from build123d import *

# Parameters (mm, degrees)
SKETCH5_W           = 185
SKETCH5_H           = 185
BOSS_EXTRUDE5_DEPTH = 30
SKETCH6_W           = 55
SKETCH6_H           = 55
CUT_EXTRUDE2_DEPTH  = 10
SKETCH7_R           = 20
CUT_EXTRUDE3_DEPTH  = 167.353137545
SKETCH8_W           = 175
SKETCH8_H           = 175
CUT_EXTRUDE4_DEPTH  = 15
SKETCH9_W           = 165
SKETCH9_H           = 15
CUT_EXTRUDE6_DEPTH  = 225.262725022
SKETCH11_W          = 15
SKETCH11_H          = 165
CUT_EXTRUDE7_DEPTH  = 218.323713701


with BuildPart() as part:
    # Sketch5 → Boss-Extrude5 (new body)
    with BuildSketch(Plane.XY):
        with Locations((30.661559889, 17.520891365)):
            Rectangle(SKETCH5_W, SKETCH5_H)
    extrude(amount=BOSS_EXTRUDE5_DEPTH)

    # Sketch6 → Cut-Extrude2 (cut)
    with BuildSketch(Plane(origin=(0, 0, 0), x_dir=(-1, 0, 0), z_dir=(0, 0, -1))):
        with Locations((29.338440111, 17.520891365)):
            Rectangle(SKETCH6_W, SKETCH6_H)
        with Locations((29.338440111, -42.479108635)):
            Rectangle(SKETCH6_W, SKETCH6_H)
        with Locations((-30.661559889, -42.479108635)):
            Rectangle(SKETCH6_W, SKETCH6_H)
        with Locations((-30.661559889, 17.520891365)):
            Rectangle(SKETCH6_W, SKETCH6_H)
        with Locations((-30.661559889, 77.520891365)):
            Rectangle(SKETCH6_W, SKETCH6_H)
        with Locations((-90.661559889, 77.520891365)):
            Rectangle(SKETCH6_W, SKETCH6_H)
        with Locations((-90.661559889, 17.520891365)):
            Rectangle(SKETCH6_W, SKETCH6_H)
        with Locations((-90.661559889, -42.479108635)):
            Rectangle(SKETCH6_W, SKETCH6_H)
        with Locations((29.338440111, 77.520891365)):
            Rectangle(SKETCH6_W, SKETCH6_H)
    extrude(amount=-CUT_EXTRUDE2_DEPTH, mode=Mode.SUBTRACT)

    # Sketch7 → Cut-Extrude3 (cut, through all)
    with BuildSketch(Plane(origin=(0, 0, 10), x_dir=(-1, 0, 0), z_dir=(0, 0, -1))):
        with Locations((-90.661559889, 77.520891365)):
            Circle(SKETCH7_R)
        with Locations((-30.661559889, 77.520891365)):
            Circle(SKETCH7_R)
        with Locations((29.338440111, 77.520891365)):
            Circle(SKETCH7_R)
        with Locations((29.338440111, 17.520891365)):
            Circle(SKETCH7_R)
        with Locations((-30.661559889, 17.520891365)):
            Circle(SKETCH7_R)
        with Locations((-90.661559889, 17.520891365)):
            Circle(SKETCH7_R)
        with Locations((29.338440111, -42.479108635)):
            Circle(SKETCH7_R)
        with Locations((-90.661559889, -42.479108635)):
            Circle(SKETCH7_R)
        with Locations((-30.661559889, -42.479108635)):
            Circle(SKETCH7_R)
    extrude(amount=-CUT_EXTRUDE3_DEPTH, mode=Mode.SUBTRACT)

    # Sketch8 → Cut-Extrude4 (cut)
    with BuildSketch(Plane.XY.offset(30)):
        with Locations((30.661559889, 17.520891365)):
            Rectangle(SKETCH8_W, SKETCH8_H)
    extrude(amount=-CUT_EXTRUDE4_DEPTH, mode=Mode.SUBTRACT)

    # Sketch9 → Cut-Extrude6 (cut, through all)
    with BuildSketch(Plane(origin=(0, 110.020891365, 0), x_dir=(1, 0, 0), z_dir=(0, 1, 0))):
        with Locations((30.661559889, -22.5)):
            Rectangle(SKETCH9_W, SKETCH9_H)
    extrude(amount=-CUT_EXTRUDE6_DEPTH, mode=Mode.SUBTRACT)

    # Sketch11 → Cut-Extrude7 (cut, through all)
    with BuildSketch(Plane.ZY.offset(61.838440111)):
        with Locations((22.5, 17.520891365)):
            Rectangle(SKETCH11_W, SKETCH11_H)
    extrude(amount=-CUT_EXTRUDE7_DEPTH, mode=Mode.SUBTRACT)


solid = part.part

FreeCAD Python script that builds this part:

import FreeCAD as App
import Part
import Sketcher

V = App.Vector
Q = App.Units.Quantity

doc = App.newDocument("Part")
body = doc.addObject("PartDesign::Body", "Body")

sketch1 = body.newObject("Sketcher::SketchObject", "Sketch")
sketch1.AttachmentSupport = (doc.getObject("XY_Plane"), [""])
sketch1.MapMode = "FlatFace"
sketch1.addGeometry([
    Part.LineSegment(V(-61.83844, 110.020891, 0), V(-61.83844, -74.979109, 0)),
    Part.LineSegment(V(-61.83844, -74.979109, 0), V(123.16156, -74.979109, 0)),
    Part.LineSegment(V(123.16156, -74.979109, 0), V(123.16156, 110.020891, 0)),
    Part.LineSegment(V(123.16156, 110.020891, 0), V(-61.83844, 110.020891, 0)),
], False)
sketch1.addConstraint([
    Sketcher.Constraint("Coincident", 0, 2, 1, 1),
    Sketcher.Constraint("Coincident", 1, 2, 2, 1),
    Sketcher.Constraint("Coincident", 2, 2, 3, 1),
    Sketcher.Constraint("Coincident", 3, 2, 0, 1),
    Sketcher.Constraint("Vertical", 0),
    Sketcher.Constraint("Horizontal", 1),
    Sketcher.Constraint("Vertical", 2),
    Sketcher.Constraint("Horizontal", 3),
    Sketcher.Constraint("Equal", 3, 0),
    Sketcher.Constraint("DistanceX", 1, 1, 1, 2, Q("185 mm")),
    Sketcher.Constraint("DistanceX", 0, 2, -1, 1, Q("61.83844 mm")),
    Sketcher.Constraint("DistanceY", 0, 2, -1, 1, Q("74.979109 mm")),
])
pad1 = body.newObject("PartDesign::Pad", "Pad")
pad1.Profile = sketch1
pad1.Length = 30

sketch2 = body.newObject("Sketcher::SketchObject", "Sketch001")
sketch2.AttachmentSupport = (doc.getObject("XY_Plane"), [""])
sketch2.MapMode = "FlatFace"
sketch2.addGeometry([
    Part.LineSegment(V(-1.83844, 45.020891, 0), V(-1.83844, -9.979109, 0)),
    Part.LineSegment(V(-1.83844, -9.979109, 0), V(-56.83844, -9.979109, 0)),
    Part.LineSegment(V(-56.83844, -9.979109, 0), V(-56.83844, 45.020891, 0)),
    Part.LineSegment(V(-56.83844, 45.020891, 0), V(-1.83844, 45.020891, 0)),
    Part.LineSegment(V(-1.83844, -14.979109, 0), V(-1.83844, -69.979109, 0)),
    Part.LineSegment(V(-1.83844, -69.979109, 0), V(-56.83844, -69.979109, 0)),
    Part.LineSegment(V(-56.83844, -69.979109, 0), V(-56.83844, -14.979109, 0)),
    Part.LineSegment(V(-56.83844, -14.979109, 0), V(-1.83844, -14.979109, 0)),
    Part.LineSegment(V(58.16156, -14.979109, 0), V(58.16156, -69.979109, 0)),
    Part.LineSegment(V(58.16156, -69.979109, 0), V(3.16156, -69.979109, 0)),
    Part.LineSegment(V(3.16156, -69.979109, 0), V(3.16156, -14.979109, 0)),
    Part.LineSegment(V(3.16156, -14.979109, 0), V(58.16156, -14.979109, 0)),
    Part.LineSegment(V(58.16156, 45.020891, 0), V(58.16156, -9.979109, 0)),
    Part.LineSegment(V(58.16156, -9.979109, 0), V(3.16156, -9.979109, 0)),
    Part.LineSegment(V(3.16156, -9.979109, 0), V(3.16156, 45.020891, 0)),
    Part.LineSegment(V(3.16156, 45.020891, 0), V(58.16156, 45.020891, 0)),
    Part.LineSegment(V(58.16156, 105.020891, 0), V(58.16156, 50.020891, 0)),
    Part.LineSegment(V(58.16156, 50.020891, 0), V(3.16156, 50.020891, 0)),
    Part.LineSegment(V(3.16156, 50.020891, 0), V(3.16156, 105.020891, 0)),
    Part.LineSegment(V(3.16156, 105.020891, 0), V(58.16156, 105.020891, 0)),
    Part.LineSegment(V(118.16156, 105.020891, 0), V(118.16156, 50.020891, 0)),
    Part.LineSegment(V(118.16156, 50.020891, 0), V(63.16156, 50.020891, 0)),
    Part.LineSegment(V(63.16156, 50.020891, 0), V(63.16156, 105.020891, 0)),
    Part.LineSegment(V(63.16156, 105.020891, 0), V(118.16156, 105.020891, 0)),
    Part.LineSegment(V(118.16156, 45.020891, 0), V(118.16156, -9.979109, 0)),
    Part.LineSegment(V(118.16156, -9.979109, 0), V(63.16156, -9.979109, 0)),
    Part.LineSegment(V(63.16156, -9.979109, 0), V(63.16156, 45.020891, 0)),
    Part.LineSegment(V(63.16156, 45.020891, 0), V(118.16156, 45.020891, 0)),
    Part.LineSegment(V(118.16156, -14.979109, 0), V(118.16156, -69.979109, 0)),
    Part.LineSegment(V(118.16156, -69.979109, 0), V(63.16156, -69.979109, 0)),
    Part.LineSegment(V(63.16156, -69.979109, 0), V(63.16156, -14.979109, 0)),
    Part.LineSegment(V(63.16156, -14.979109, 0), V(118.16156, -14.979109, 0)),
    Part.LineSegment(V(-1.83844, 105.020891, 0), V(-1.83844, 50.020891, 0)),
    Part.LineSegment(V(-1.83844, 50.020891, 0), V(-56.83844, 50.020891, 0)),
    Part.LineSegment(V(-56.83844, 50.020891, 0), V(-56.83844, 105.020891, 0)),
    Part.LineSegment(V(-56.83844, 105.020891, 0), V(-1.83844, 105.020891, 0)),
], False)
sketch2.addConstraint([
    Sketcher.Constraint("Coincident", 0, 2, 1, 1),
    Sketcher.Constraint("Coincident", 1, 2, 2, 1),
    Sketcher.Constraint("Coincident", 2, 2, 3, 1),
    Sketcher.Constraint("Coincident", 3, 2, 0, 1),
    Sketcher.Constraint("Coincident", 4, 2, 5, 1),
    Sketcher.Constraint("Coincident", 5, 2, 6, 1),
    Sketcher.Constraint("Coincident", 6, 2, 7, 1),
    Sketcher.Constraint("Coincident", 7, 2, 4, 1),
    Sketcher.Constraint("Coincident", 8, 2, 9, 1),
    Sketcher.Constraint("Coincident", 9, 2, 10, 1),
    Sketcher.Constraint("Coincident", 10, 2, 11, 1),
    Sketcher.Constraint("Coincident", 11, 2, 8, 1),
    Sketcher.Constraint("Coincident", 12, 2, 13, 1),
    Sketcher.Constraint("Coincident", 13, 2, 14, 1),
    Sketcher.Constraint("Coincident", 14, 2, 15, 1),
    Sketcher.Constraint("Coincident", 15, 2, 12, 1),
    Sketcher.Constraint("Coincident", 16, 2, 17, 1),
    Sketcher.Constraint("Coincident", 17, 2, 18, 1),
    Sketcher.Constraint("Coincident", 18, 2, 19, 1),
    Sketcher.Constraint("Coincident", 19, 2, 16, 1),
    Sketcher.Constraint("Coincident", 20, 2, 21, 1),
    Sketcher.Constraint("Coincident", 21, 2, 22, 1),
    Sketcher.Constraint("Coincident", 22, 2, 23, 1),
    Sketcher.Constraint("Coincident", 23, 2, 20, 1),
    Sketcher.Constraint("Coincident", 24, 2, 25, 1),
    Sketcher.Constraint("Coincident", 25, 2, 26, 1),
    Sketcher.Constraint("Coincident", 26, 2, 27, 1),
    Sketcher.Constraint("Coincident", 27, 2, 24, 1),
    Sketcher.Constraint("Coincident", 28, 2, 29, 1),
    Sketcher.Constraint("Coincident", 29, 2, 30, 1),
    Sketcher.Constraint("Coincident", 30, 2, 31, 1),
    Sketcher.Constraint("Coincident", 31, 2, 28, 1),
    Sketcher.Constraint("Coincident", 32, 2, 33, 1),
    Sketcher.Constraint("Coincident", 33, 2, 34, 1),
    Sketcher.Constraint("Coincident", 34, 2, 35, 1),
    Sketcher.Constraint("Coincident", 35, 2, 32, 1),
    Sketcher.Constraint("Vertical", 0),
    Sketcher.Constraint("Horizontal", 1),
    Sketcher.Constraint("Vertical", 2),
    Sketcher.Constraint("Horizontal", 3),
    Sketcher.Constraint("Vertical", 4),
    Sketcher.Constraint("Horizontal", 5),
    Sketcher.Constraint("Vertical", 6),
    Sketcher.Constraint("Horizontal", 7),
    Sketcher.Constraint("Vertical", 8),
    Sketcher.Constraint("Horizontal", 9),
    Sketcher.Constraint("Vertical", 10),
    Sketcher.Constraint("Horizontal", 11),
    Sketcher.Constraint("Vertical", 12),
    Sketcher.Constraint("Horizontal", 13),
    Sketcher.Constraint("Vertical", 14),
    Sketcher.Constraint("Horizontal", 15),
    Sketcher.Constraint("Vertical", 16),
    Sketcher.Constraint("Horizontal", 17),
    Sketcher.Constraint("Vertical", 18),
    Sketcher.Constraint("Horizontal", 19),
    Sketcher.Constraint("Vertical", 20),
    Sketcher.Constraint("Horizontal", 21),
    Sketcher.Constraint("Vertical", 22),
    Sketcher.Constraint("Horizontal", 23),
    Sketcher.Constraint("Vertical", 24),
    Sketcher.Constraint("Horizontal", 25),
    Sketcher.Constraint("Vertical", 26),
    Sketcher.Constraint("Horizontal", 27),
    Sketcher.Constraint("Vertical", 28),
    Sketcher.Constraint("Horizontal", 29),
    Sketcher.Constraint("Vertical", 30),
    Sketcher.Constraint("Horizontal", 31),
    Sketcher.Constraint("Vertical", 32),
    Sketcher.Constraint("Horizontal", 33),
    Sketcher.Constraint("Vertical", 34),
    Sketcher.Constraint("Horizontal", 35),
    Sketcher.Constraint("Horizontal", 5, 2, 8, 2),
    Sketcher.Constraint("Horizontal", 7, 2, 10, 2),
    Sketcher.Constraint("Horizontal", 1, 2, 12, 2),
    Sketcher.Constraint("Horizontal", 3, 2, 14, 2),
    Sketcher.Constraint("Horizontal", 17, 2, 20, 2),
    Sketcher.Constraint("Horizontal", 19, 2, 22, 2),
    Sketcher.Constraint("Horizontal", 13, 2, 24, 2),
    Sketcher.Constraint("Horizontal", 15, 2, 26, 2),
    Sketcher.Constraint("Horizontal", 9, 2, 28, 2),
    Sketcher.Constraint("Horizontal", 11, 2, 30, 2),
    Sketcher.Constraint("Horizontal", 21, 2, 32, 2),
    Sketcher.Constraint("Horizontal", 23, 2, 34, 2),
    Sketcher.Constraint("Vertical", 3, 2, 4, 2),
    Sketcher.Constraint("Vertical", 2, 2, 5, 2),
    Sketcher.Constraint("Vertical", 11, 2, 12, 2),
    Sketcher.Constraint("Vertical", 10, 2, 13, 2),
    Sketcher.Constraint("Vertical", 15, 2, 16, 2),
    Sketcher.Constraint("Vertical", 14, 2, 17, 2),
    Sketcher.Constraint("Vertical", 23, 2, 24, 2),
    Sketcher.Constraint("Vertical", 22, 2, 25, 2),
    Sketcher.Constraint("Vertical", 27, 2, 28, 2),
    Sketcher.Constraint("Vertical", 26, 2, 29, 2),
    Sketcher.Constraint("Vertical", 7, 2, 32, 2),
    Sketcher.Constraint("Vertical", 6, 2, 33, 2),
    Sketcher.Constraint("Equal", 7, 9),
    Sketcher.Constraint("Equal", 19, 21),
    Sketcher.Constraint("Equal", 35, 0),
    Sketcher.Constraint("Equal", 2, 4),
    Sketcher.Constraint("Equal", 14, 16),
    Sketcher.Constraint("DistanceX", 1, 2, 1, 1, Q("55 mm")),
    Sketcher.Constraint("DistanceY", 4, 2, 0, 2, Q("60 mm")),
    Sketcher.Constraint("DistanceX", 4, 2, 8, 2, Q("60 mm")),
    Sketcher.Constraint("DistanceY", 15, 2, 16, 2, Q("5 mm")),
    Sketcher.Constraint("DistanceX", 16, 2, 20, 2, Q("60 mm")),
    Sketcher.Constraint("DistanceX", 0, 2, -1, 1, Q("1.83844 mm")),
    Sketcher.Constraint("DistanceY", 0, 2, -1, 1, Q("9.979109 mm")),
])
pocket1 = body.newObject("PartDesign::Pocket", "Pocket")
pocket1.Profile = sketch2
pocket1.Length = 10
pocket1.Reversed = True

sketch3 = body.newObject("Sketcher::SketchObject", "Sketch002")
sketch3.AttachmentSupport = (doc.getObject("XY_Plane"), [""])
sketch3.MapMode = "FlatFace"
sketch3.AttachmentOffset = App.Placement(V(0, 0, 10), App.Rotation())
sketch3.addGeometry([
    Part.Circle(V(90.66156, 77.520891, 0), V(0, 0, 1), 20),
    Part.Circle(V(30.66156, 77.520891, 0), V(0, 0, 1), 20),
    Part.Circle(V(-29.33844, 77.520891, 0), V(0, 0, 1), 20),
    Part.Circle(V(-29.33844, 17.520891, 0), V(0, 0, 1), 20),
    Part.Circle(V(30.66156, 17.520891, 0), V(0, 0, 1), 20),
    Part.Circle(V(90.66156, 17.520891, 0), V(0, 0, 1), 20),
    Part.Circle(V(-29.33844, -42.479109, 0), V(0, 0, 1), 20),
    Part.Circle(V(90.66156, -42.479109, 0), V(0, 0, 1), 20),
    Part.Circle(V(30.66156, -42.479109, 0), V(0, 0, 1), 20),
], False)
sketch3.addConstraint([
    Sketcher.Constraint("Equal", 0, 1),
    Sketcher.Constraint("Equal", 1, 2),
    Sketcher.Constraint("Equal", 2, 3),
    Sketcher.Constraint("Equal", 3, 4),
    Sketcher.Constraint("Equal", 4, 5),
    Sketcher.Constraint("Equal", 5, 6),
    Sketcher.Constraint("Equal", 6, 7),
    Sketcher.Constraint("Equal", 7, 8),
    Sketcher.Constraint("Horizontal", 0, 3, 1, 3),
    Sketcher.Constraint("Horizontal", 1, 3, 2, 3),
    Sketcher.Constraint("Horizontal", 3, 3, 4, 3),
    Sketcher.Constraint("Horizontal", 4, 3, 5, 3),
    Sketcher.Constraint("Horizontal", 6, 3, 7, 3),
    Sketcher.Constraint("Horizontal", 7, 3, 8, 3),
    Sketcher.Constraint("Vertical", 2, 3, 3, 3),
    Sketcher.Constraint("Vertical", 1, 3, 4, 3),
    Sketcher.Constraint("Vertical", 0, 3, 5, 3),
    Sketcher.Constraint("Vertical", 3, 3, 6, 3),
    Sketcher.Constraint("Vertical", 5, 3, 7, 3),
    Sketcher.Constraint("Vertical", 4, 3, 8, 3),
    Sketcher.Constraint("Diameter", 0, Q("40 mm")),
    Sketcher.Constraint("DistanceX", 1, 3, 0, 3, Q("60 mm")),
    Sketcher.Constraint("DistanceX", 2, 3, 1, 3, Q("60 mm")),
    Sketcher.Constraint("DistanceY", 3, 3, 2, 3, Q("60 mm")),
    Sketcher.Constraint("DistanceY", 6, 3, 3, 3, Q("60 mm")),
    Sketcher.Constraint("DistanceX", -1, 1, 0, 3, Q("90.66156 mm")),
    Sketcher.Constraint("DistanceY", -1, 1, 0, 3, Q("77.520891 mm")),
])
pocket2 = body.newObject("PartDesign::Pocket", "Pocket001")
pocket2.Profile = sketch3
pocket2.Type = "ThroughAll"
pocket2.Reversed = True

sketch4 = body.newObject("Sketcher::SketchObject", "Sketch003")
sketch4.AttachmentSupport = (doc.getObject("XY_Plane"), [""])
sketch4.MapMode = "FlatFace"
sketch4.AttachmentOffset = App.Placement(V(0, 0, 30), App.Rotation())
sketch4.addGeometry([
    Part.LineSegment(V(-56.83844, 105.020891, 0), V(-56.83844, -69.979109, 0)),
    Part.LineSegment(V(-56.83844, -69.979109, 0), V(118.16156, -69.979109, 0)),
    Part.LineSegment(V(118.16156, -69.979109, 0), V(118.16156, 105.020891, 0)),
    Part.LineSegment(V(118.16156, 105.020891, 0), V(-56.83844, 105.020891, 0)),
], False)
sketch4.addConstraint([
    Sketcher.Constraint("Coincident", 0, 2, 1, 1),
    Sketcher.Constraint("Coincident", 1, 2, 2, 1),
    Sketcher.Constraint("Coincident", 2, 2, 3, 1),
    Sketcher.Constraint("Coincident", 3, 2, 0, 1),
    Sketcher.Constraint("Vertical", 0),
    Sketcher.Constraint("Horizontal", 1),
    Sketcher.Constraint("Vertical", 2),
    Sketcher.Constraint("Horizontal", 3),
    Sketcher.Constraint("Equal", 3, 0),
    Sketcher.Constraint("DistanceX", 1, 1, 1, 2, Q("175 mm")),
    Sketcher.Constraint("DistanceX", 0, 2, -1, 1, Q("56.83844 mm")),
    Sketcher.Constraint("DistanceY", 0, 2, -1, 1, Q("69.979109 mm")),
])
pocket3 = body.newObject("PartDesign::Pocket", "Pocket002")
pocket3.Profile = sketch4
pocket3.Length = 15

sketch5 = body.newObject("Sketcher::SketchObject", "Sketch004")
sketch5.AttachmentSupport = (doc.getObject("XZ_Plane"), [""])
sketch5.MapMode = "FlatFace"
sketch5.AttachmentOffset = App.Placement(V(0, 0, -110.020891), App.Rotation())
sketch5.addGeometry([
    Part.LineSegment(V(-51.83844, 15, 0), V(-51.83844, 30, 0)),
    Part.LineSegment(V(-51.83844, 30, 0), V(113.16156, 30, 0)),
    Part.LineSegment(V(113.16156, 30, 0), V(113.16156, 15, 0)),
    Part.LineSegment(V(113.16156, 15, 0), V(-51.83844, 15, 0)),
], False)
sketch5.addConstraint([
    Sketcher.Constraint("Coincident", 0, 2, 1, 1),
    Sketcher.Constraint("Coincident", 1, 2, 2, 1),
    Sketcher.Constraint("Coincident", 2, 2, 3, 1),
    Sketcher.Constraint("Coincident", 3, 2, 0, 1),
    Sketcher.Constraint("Vertical", 0),
    Sketcher.Constraint("Horizontal", 1),
    Sketcher.Constraint("Vertical", 2),
    Sketcher.Constraint("Horizontal", 3),
    Sketcher.Constraint("DistanceX", 1, 1, 1, 2, Q("165 mm")),
    Sketcher.Constraint("DistanceY", 0, 1, 0, 2, Q("15 mm")),
    Sketcher.Constraint("DistanceY", -1, 1, 0, 2, Q("30 mm")),
    Sketcher.Constraint("DistanceX", 0, 2, -1, 1, Q("51.83844 mm")),
])
pocket4 = body.newObject("PartDesign::Pocket", "Pocket003")
pocket4.Profile = sketch5
pocket4.Type = "ThroughAll"
pocket4.Reversed = True

sketch6 = body.newObject("Sketcher::SketchObject", "Sketch005")
sketch6.AttachmentSupport = (doc.getObject("YZ_Plane"), [""])
sketch6.MapMode = "FlatFace"
sketch6.AttachmentOffset = App.Placement(V(0, 0, -61.83844), App.Rotation())
sketch6.addGeometry([
    Part.LineSegment(V(100.020891, 15, 0), V(-64.979109, 15, 0)),
    Part.LineSegment(V(-64.979109, 15, 0), V(-64.979109, 30, 0)),
    Part.LineSegment(V(-64.979109, 30, 0), V(100.020891, 30, 0)),
    Part.LineSegment(V(100.020891, 30, 0), V(100.020891, 15, 0)),
], False)
sketch6.addConstraint([
    Sketcher.Constraint("Coincident", 0, 2, 1, 1),
    Sketcher.Constraint("Coincident", 1, 2, 2, 1),
    Sketcher.Constraint("Coincident", 2, 2, 3, 1),
    Sketcher.Constraint("Coincident", 3, 2, 0, 1),
    Sketcher.Constraint("Horizontal", 0),
    Sketcher.Constraint("Vertical", 1),
    Sketcher.Constraint("Horizontal", 2),
    Sketcher.Constraint("Vertical", 3),
    Sketcher.Constraint("DistanceX", 0, 2, 0, 1, Q("165 mm")),
    Sketcher.Constraint("DistanceY", 1, 1, 1, 2, Q("15 mm")),
    Sketcher.Constraint("DistanceY", -1, 1, 0, 2, Q("15 mm")),
    Sketcher.Constraint("DistanceX", 0, 2, -1, 1, Q("64.979109 mm")),
])
pocket5 = body.newObject("PartDesign::Pocket", "Pocket004")
pocket5.Profile = sketch6
pocket5.Type = "ThroughAll"
pocket5.Reversed = True

doc.recompute()
